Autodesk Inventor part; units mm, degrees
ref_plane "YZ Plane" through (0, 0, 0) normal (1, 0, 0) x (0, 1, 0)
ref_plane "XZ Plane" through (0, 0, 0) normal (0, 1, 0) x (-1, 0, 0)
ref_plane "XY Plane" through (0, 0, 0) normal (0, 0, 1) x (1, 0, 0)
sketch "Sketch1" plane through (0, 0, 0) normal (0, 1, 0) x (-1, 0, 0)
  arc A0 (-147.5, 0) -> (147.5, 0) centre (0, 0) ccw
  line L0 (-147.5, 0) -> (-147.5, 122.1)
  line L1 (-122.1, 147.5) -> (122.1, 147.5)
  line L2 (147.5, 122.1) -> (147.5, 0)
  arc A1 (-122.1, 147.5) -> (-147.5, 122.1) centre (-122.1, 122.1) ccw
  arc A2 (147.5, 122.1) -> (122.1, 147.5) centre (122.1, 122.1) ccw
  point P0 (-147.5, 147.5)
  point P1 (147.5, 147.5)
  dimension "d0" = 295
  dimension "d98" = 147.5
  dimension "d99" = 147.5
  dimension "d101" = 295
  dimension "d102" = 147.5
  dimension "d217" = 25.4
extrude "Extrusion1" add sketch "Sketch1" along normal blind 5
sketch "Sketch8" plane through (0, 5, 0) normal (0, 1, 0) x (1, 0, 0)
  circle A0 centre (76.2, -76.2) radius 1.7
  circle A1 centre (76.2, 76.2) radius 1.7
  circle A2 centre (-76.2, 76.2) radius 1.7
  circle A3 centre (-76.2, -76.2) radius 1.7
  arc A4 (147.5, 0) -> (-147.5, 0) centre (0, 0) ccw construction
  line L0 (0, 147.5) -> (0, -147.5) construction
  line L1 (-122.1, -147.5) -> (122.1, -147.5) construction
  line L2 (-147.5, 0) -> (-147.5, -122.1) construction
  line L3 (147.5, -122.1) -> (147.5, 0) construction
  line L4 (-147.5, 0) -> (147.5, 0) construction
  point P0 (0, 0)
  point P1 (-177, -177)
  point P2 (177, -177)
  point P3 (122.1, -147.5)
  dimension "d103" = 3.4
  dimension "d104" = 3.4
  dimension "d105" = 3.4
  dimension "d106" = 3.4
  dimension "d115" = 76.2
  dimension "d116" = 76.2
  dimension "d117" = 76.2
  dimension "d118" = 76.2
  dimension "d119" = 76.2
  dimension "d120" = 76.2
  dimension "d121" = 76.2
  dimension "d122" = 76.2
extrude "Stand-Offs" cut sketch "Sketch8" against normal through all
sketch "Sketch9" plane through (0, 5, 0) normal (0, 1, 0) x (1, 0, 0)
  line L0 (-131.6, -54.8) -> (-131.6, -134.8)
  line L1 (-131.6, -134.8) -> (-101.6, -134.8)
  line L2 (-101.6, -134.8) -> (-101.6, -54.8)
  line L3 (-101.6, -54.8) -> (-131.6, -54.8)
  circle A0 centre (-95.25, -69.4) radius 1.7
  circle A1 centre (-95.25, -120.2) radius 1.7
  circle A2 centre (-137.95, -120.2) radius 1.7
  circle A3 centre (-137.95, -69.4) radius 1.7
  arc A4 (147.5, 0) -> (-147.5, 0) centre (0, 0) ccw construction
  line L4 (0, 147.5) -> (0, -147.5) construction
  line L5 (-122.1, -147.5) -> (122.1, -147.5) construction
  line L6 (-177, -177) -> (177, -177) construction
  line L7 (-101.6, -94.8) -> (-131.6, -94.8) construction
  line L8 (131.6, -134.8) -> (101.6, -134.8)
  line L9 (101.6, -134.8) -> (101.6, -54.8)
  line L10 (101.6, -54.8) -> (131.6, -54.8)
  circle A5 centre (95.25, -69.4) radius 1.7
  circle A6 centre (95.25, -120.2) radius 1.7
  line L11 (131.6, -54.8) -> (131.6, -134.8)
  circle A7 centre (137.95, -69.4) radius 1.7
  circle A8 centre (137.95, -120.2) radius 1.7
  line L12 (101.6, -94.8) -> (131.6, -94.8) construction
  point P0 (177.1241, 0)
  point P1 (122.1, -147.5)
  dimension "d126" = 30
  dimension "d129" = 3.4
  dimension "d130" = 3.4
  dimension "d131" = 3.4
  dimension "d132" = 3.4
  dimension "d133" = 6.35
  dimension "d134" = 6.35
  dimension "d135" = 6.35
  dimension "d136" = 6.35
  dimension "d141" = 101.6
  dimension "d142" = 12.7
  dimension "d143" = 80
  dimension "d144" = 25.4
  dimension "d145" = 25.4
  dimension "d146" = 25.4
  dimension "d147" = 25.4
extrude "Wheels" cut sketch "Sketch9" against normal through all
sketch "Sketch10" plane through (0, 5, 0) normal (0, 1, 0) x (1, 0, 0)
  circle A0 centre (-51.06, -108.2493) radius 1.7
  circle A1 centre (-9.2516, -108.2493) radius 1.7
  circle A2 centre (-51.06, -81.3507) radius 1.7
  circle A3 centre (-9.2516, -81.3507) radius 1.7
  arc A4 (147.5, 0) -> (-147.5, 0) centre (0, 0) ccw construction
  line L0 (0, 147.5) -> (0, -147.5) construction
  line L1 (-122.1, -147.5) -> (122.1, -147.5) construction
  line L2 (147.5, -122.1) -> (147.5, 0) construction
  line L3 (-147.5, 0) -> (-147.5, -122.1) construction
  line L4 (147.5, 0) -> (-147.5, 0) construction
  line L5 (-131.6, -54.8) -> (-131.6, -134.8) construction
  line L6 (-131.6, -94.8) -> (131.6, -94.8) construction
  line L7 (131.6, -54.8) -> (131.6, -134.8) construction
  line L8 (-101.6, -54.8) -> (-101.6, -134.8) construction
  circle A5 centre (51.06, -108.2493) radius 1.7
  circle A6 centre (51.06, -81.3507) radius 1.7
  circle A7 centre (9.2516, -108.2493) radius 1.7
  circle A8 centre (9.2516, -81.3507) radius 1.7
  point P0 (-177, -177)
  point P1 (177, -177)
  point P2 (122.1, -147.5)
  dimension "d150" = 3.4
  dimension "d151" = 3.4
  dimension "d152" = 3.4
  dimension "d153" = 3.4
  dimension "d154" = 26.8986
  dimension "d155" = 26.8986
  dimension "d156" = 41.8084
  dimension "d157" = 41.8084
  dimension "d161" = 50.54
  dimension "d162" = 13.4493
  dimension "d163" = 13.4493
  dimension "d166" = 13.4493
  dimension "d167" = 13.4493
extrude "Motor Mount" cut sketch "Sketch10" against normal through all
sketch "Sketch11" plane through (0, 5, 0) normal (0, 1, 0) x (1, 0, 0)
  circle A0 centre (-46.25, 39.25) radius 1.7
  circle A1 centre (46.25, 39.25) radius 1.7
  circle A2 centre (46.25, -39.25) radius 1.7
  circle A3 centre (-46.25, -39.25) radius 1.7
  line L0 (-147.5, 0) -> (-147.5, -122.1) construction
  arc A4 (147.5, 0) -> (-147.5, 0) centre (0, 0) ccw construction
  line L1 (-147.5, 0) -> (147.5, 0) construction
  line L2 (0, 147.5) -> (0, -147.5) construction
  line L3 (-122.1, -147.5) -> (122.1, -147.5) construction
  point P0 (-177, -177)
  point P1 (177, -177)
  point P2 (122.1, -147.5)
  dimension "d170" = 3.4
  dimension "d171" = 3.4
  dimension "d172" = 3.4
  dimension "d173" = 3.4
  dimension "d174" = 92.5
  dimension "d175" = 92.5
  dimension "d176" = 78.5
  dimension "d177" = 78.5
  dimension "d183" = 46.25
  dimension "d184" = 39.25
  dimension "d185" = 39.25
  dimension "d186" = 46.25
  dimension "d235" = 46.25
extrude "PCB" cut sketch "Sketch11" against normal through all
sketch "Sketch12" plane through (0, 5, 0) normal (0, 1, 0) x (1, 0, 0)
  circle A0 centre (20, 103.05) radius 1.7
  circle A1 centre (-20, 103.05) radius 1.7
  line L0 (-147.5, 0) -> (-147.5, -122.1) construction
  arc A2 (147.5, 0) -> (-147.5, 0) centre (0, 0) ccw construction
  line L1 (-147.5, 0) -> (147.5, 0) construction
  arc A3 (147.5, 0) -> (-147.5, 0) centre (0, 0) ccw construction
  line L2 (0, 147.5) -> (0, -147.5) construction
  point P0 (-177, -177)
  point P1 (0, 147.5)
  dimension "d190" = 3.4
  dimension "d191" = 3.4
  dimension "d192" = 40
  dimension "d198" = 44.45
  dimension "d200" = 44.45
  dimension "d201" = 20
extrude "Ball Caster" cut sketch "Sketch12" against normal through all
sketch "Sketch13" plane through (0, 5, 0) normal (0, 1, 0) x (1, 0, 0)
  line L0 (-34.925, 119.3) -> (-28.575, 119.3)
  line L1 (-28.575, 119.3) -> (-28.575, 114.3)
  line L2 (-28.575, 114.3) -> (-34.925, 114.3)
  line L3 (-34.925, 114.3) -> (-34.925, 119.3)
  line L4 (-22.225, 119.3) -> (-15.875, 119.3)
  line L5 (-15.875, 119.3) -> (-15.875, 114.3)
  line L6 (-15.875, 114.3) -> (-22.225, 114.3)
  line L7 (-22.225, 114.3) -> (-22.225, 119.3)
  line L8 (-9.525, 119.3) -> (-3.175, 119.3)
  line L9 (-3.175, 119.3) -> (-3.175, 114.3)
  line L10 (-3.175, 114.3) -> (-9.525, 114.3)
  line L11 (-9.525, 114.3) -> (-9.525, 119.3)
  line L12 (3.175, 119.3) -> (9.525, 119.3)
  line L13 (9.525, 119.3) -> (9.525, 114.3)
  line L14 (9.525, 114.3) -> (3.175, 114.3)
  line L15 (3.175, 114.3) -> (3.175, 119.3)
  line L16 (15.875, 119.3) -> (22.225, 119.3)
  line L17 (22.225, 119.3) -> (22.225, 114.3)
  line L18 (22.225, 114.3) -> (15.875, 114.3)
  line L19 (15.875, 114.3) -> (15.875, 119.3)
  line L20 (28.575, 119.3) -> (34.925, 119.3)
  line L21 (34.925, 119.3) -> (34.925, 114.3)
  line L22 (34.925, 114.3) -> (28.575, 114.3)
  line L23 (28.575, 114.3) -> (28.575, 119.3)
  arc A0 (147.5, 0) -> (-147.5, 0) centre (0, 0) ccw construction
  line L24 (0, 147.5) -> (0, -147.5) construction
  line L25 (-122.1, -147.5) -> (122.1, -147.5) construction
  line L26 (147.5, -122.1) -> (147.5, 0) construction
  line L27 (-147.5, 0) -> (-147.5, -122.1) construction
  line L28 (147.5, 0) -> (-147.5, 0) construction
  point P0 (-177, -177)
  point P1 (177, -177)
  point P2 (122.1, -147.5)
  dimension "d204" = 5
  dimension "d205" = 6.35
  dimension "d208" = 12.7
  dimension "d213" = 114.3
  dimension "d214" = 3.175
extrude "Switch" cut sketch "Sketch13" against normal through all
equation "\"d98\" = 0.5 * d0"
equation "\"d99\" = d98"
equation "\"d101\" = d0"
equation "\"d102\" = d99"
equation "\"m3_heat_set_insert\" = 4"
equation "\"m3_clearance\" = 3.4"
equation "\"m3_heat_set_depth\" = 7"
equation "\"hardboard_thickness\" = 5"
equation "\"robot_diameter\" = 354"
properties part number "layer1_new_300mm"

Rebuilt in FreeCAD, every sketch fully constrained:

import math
import FreeCAD as App
import Part
import Sketcher

V = App.Vector
Q = App.Units.Quantity


def add_polygon(sketch, points):
    """Adds a closed chain of lines whose ends are joined by coincident constraints."""
    first, n = sketch.GeometryCount, len(points)
    for a, b in zip(points, points[1:] + points[:1]):
        sketch.addGeometry(Part.LineSegment(App.Vector(*a, 0), App.Vector(*b, 0)), False)
    for i in range(n):
        sketch.addConstraint(Sketcher.Constraint("Coincident", first + i, 2, first + (i + 1) % n, 1))

doc = App.newDocument("Part")
body = doc.addObject("PartDesign::Body", "Body")

# Sketch on XZ plane
sketch1 = body.newObject("Sketcher::SketchObject", "Sketch")
sketch1.AttachmentSupport = (doc.getObject("XZ_Plane"), [""])
sketch1.MapMode = "FlatFace"
sketch1.addGeometry([
    Part.LineSegment(V(148, 122, 0), V(148, 0, 0)),  # 0
    Part.ArcOfCircle(Part.Circle(V(0, 0, 0), V(0, 0, 1), 148), math.radians(180), math.radians(360)),  # 1
    Part.LineSegment(V(-148, 0, 0), V(-148, 122, 0)),  # 2
    Part.ArcOfCircle(Part.Circle(V(-122, 122, 0), V(0, 0, 1), 25), math.radians(90), math.radians(180)),  # 3
    Part.LineSegment(V(-122, 148, 0), V(122, 148, 0)),  # 4
    Part.ArcOfCircle(Part.Circle(V(122, 122, 0), V(0, 0, 1), 25), math.radians(0), math.radians(90)),  # 5
], False)
sketch1.addConstraint([
    Sketcher.Constraint("Tangent", 0, 2, 1, 2),
    Sketcher.Constraint("Tangent", 1, 1, 2, 1),
    Sketcher.Constraint("Tangent", 2, 2, 3, 2),
    Sketcher.Constraint("Tangent", 3, 1, 4, 1),
    Sketcher.Constraint("Tangent", 4, 2, 5, 2),
    Sketcher.Constraint("Tangent", 5, 1, 0, 1),
    Sketcher.Constraint("Vertical", 0),
    Sketcher.Constraint("Vertical", 2),
    Sketcher.Constraint("Horizontal", 4),
    Sketcher.Constraint("Coincident", 1, 3, -1, 1),
    Sketcher.Constraint("Equal", 3, 5),
    Sketcher.Constraint("Radius", 1, Q("147.5 mm")),
    Sketcher.Constraint("Radius", 3, Q("25.4 mm")),
    Sketcher.Constraint("DistanceY", -1, 1, 3, 1, Q("147.5 mm")),
])
pad1 = body.newObject("PartDesign::Pad", "Pad")
pad1.Profile = sketch1
pad1.Length = 5
pad1.Reversed = True

# Sketch on XZ plane
sketch2 = body.newObject("Sketcher::SketchObject", "Sketch001")
sketch2.AttachmentSupport = (doc.getObject("XZ_Plane"), [""])
sketch2.MapMode = "FlatFace"
sketch2.AttachmentOffset = App.Placement(V(0, 0, -5), App.Rotation())
sketch2.addGeometry([
    Part.Circle(V(76.2, 76.2, 0), V(0, 0, 1), 1.7),
    Part.Circle(V(76.2, -76.2, 0), V(0, 0, 1), 1.7),
    Part.Circle(V(-76.2, -76.2, 0), V(0, 0, 1), 1.7),
    Part.Circle(V(-76.2, 76.2, 0), V(0, 0, 1), 1.7),
], False)
sketch2.addConstraint([
    Sketcher.Constraint("Equal", 0, 1),
    Sketcher.Constraint("Equal", 1, 2),
    Sketcher.Constraint("Equal", 2, 3),
    Sketcher.Constraint("Symmetric", 0, 3, 2, 3, -1, 1),
    Sketcher.Constraint("Symmetric", 1, 3, 3, 3, -1, 1),
    Sketcher.Constraint("Symmetric", 1, 3, 2, 3, -2),
    Sketcher.Constraint("Diameter", 0, Q("3.4 mm")),
    Sketcher.Constraint("DistanceX", -1, 1, 0, 3, Q("76.2 mm")),
    Sketcher.Constraint("DistanceY", -1, 1, 0, 3, Q("76.2 mm")),
])
pocket1 = body.newObject("PartDesign::Pocket", "Pocket")
pocket1.Profile = sketch2
pocket1.Type = "ThroughAll"
pocket1.Reversed = True

# Sketch on XZ plane
sketch3 = body.newObject("Sketcher::SketchObject", "Sketch002")
sketch3.AttachmentSupport = (doc.getObject("XZ_Plane"), [""])
sketch3.MapMode = "FlatFace"
sketch3.AttachmentOffset = App.Placement(V(0, 0, -5), App.Rotation())
add_polygon(sketch3, [(-101.6, 54.8), (-131.6, 54.8), (-131.6, 134.8), (-101.6, 134.8)])  # lines 0-3
sketch3.addGeometry(Part.Circle(V(-95.2, 69.4, 0), V(0, 0, 1), 1.7), False)  # 4
sketch3.addGeometry(Part.Circle(V(-95.2, 120.2, 0), V(0, 0, 1), 1.7), False)  # 5
sketch3.addGeometry(Part.Circle(V(-137.9, 120.2, 0), V(0, 0, 1), 1.7), False)  # 6
sketch3.addGeometry(Part.Circle(V(-137.9, 69.4, 0), V(0, 0, 1), 1.7), False)  # 7
add_polygon(sketch3, [(101.6, 134.8), (131.6, 134.8), (131.6, 54.8), (101.6, 54.8)])  # lines 8-11
sketch3.addGeometry(Part.Circle(V(95.2, 69.4, 0), V(0, 0, 1), 1.7), False)  # 12
sketch3.addGeometry(Part.Circle(V(95.2, 120.2, 0), V(0, 0, 1), 1.7), False)  # 13
sketch3.addGeometry(Part.Circle(V(137.9, 69.4, 0), V(0, 0, 1), 1.7), False)  # 14
sketch3.addGeometry(Part.Circle(V(137.9, 120.2, 0), V(0, 0, 1), 1.7), False)  # 15
sketch3.addConstraint([
    Sketcher.Constraint("Horizontal", 0),
    Sketcher.Constraint("Vertical", 1),
    Sketcher.Constraint("Horizontal", 2),
    Sketcher.Constraint("Vertical", 3),
    Sketcher.Constraint("Horizontal", 8),
    Sketcher.Constraint("Vertical", 9),
    Sketcher.Constraint("Horizontal", 10),
    Sketcher.Constraint("Vertical", 11),
    Sketcher.Constraint("Equal", 4, 5),
    Sketcher.Constraint("Equal", 5, 6),
    Sketcher.Constraint("Equal", 6, 7),
    Sketcher.Constraint("Equal", 7, 12),
    Sketcher.Constraint("Equal", 12, 13),
    Sketcher.Constraint("Equal", 13, 14),
    Sketcher.Constraint("Equal", 14, 15),
    Sketcher.Constraint("Symmetric", 4, 3, 12, 3, -2),
    Sketcher.Constraint("Symmetric", 5, 3, 13, 3, -2),
    Sketcher.Constraint("Symmetric", 7, 3, 14, 3, -2),
    Sketcher.Constraint("Symmetric", 6, 3, 15, 3, -2),
    Sketcher.Constraint("Symmetric", 1, 2, 8, 2, -2),
    Sketcher.Constraint("Symmetric", 3, 2, 10, 2, -2),
    Sketcher.Constraint("Horizontal", 5, 3, 6, 3),
    Sketcher.Constraint("Horizontal", 4, 3, 7, 3),
    Sketcher.Constraint("Vertical", 4, 3, 5, 3),
    Sketcher.Constraint("Vertical", 6, 3, 7, 3),
    Sketcher.Constraint("Diameter", 4, Q("3.4 mm")),
    Sketcher.Constraint("DistanceX", 0, 2, 0, 1, Q("30 mm")),
    Sketcher.Constraint("DistanceY", 1, 1, 1, 2, Q("80 mm")),
    Sketcher.Constraint("DistanceX", 2, 2, -1, 1, Q("101.6 mm")),
    Sketcher.Constraint("DistanceX", 7, 3, 0, 2, Q("6.35 mm")),
    Sketcher.Constraint("DistanceX", 2, 2, 5, 3, Q("6.35 mm")),
    Sketcher.Constraint("DistanceY", -1, 1, 4, 3, Q("69.4 mm")),
    Sketcher.Constraint("DistanceY", -1, 1, 5, 3, Q("120.2 mm")),
    Sketcher.Constraint("DistanceY", -1, 1, 0, 2, Q("54.8 mm")),
])
pocket2 = body.newObject("PartDesign::Pocket", "Pocket001")
pocket2.Profile = sketch3
pocket2.Type = "ThroughAll"
pocket2.Reversed = True

# Sketch on XZ plane
sketch4 = body.newObject("Sketcher::SketchObject", "Sketch003")
sketch4.AttachmentSupport = (doc.getObject("XZ_Plane"), [""])
sketch4.MapMode = "FlatFace"
sketch4.AttachmentOffset = App.Placement(V(0, 0, -5), App.Rotation())
sketch4.addGeometry([
    Part.Circle(V(-51.1, 108.2, 0), V(0, 0, 1), 1.7),  # 0
    Part.Circle(V(-9.3, 108.2, 0), V(0, 0, 1), 1.7),  # 1
    Part.Circle(V(-51.1, 81.4, 0), V(0, 0, 1), 1.7),  # 2
    Part.Circle(V(-9.3, 81.4, 0), V(0, 0, 1), 1.7),  # 3
    Part.Circle(V(51.1, 108.2, 0), V(0, 0, 1), 1.7),  # 4
    Part.Circle(V(51.1, 81.4, 0), V(0, 0, 1), 1.7),  # 5
    Part.Circle(V(9.3, 108.2, 0), V(0, 0, 1), 1.7),  # 6
    Part.Circle(V(9.3, 81.4, 0), V(0, 0, 1), 1.7),  # 7
], False)
sketch4.addConstraint([
    Sketcher.Constraint("Equal", 0, 1),
    Sketcher.Constraint("Equal", 1, 2),
    Sketcher.Constraint("Equal", 2, 3),
    Sketcher.Constraint("Equal", 3, 4),
    Sketcher.Constraint("Equal", 4, 5),
    Sketcher.Constraint("Equal", 5, 6),
    Sketcher.Constraint("Equal", 6, 7),
    Sketcher.Constraint("Symmetric", 0, 3, 4, 3, -2),
    Sketcher.Constraint("Symmetric", 2, 3, 5, 3, -2),
    Sketcher.Constraint("Symmetric", 1, 3, 6, 3, -2),
    Sketcher.Constraint("Symmetric", 3, 3, 7, 3, -2),
    Sketcher.Constraint("Horizontal", 0, 3, 1, 3),
    Sketcher.Constraint("Horizontal", 2, 3, 3, 3),
    Sketcher.Constraint("Vertical", 0, 3, 2, 3),
    Sketcher.Constraint("Vertical", 1, 3, 3, 3),
    Sketcher.Constraint("Diameter", 0, Q("3.4 mm")),
    Sketcher.Constraint("DistanceX", 0, 3, 1, 3, Q("41.8084 mm")),
    Sketcher.Constraint("DistanceY", 2, 3, 0, 3, Q("26.8986 mm")),
    Sketcher.Constraint("DistanceX", 0, 3, -1, 1, Q("51.06 mm")),
    Sketcher.Constraint("DistanceY", -1, 1, 0, 3, Q("108.2493 mm")),
])
pocket3 = body.newObject("PartDesign::Pocket", "Pocket002")
pocket3.Profile = sketch4
pocket3.Type = "ThroughAll"
pocket3.Reversed = True

# Sketch on XZ plane
sketch5 = body.newObject("Sketcher::SketchObject", "Sketch004")
sketch5.AttachmentSupport = (doc.getObject("XZ_Plane"), [""])
sketch5.MapMode = "FlatFace"
sketch5.AttachmentOffset = App.Placement(V(0, 0, -5), App.Rotation())
sketch5.addGeometry([
    Part.Circle(V(-46.2, -39.2, 0), V(0, 0, 1), 1.7),
    Part.Circle(V(46.2, -39.2, 0), V(0, 0, 1), 1.7),
    Part.Circle(V(46.2, 39.2, 0), V(0, 0, 1), 1.7),
    Part.Circle(V(-46.2, 39.2, 0), V(0, 0, 1), 1.7),
], False)
sketch5.addConstraint([
    Sketcher.Constraint("Equal", 0, 1),
    Sketcher.Constraint("Equal", 1, 2),
    Sketcher.Constraint("Equal", 2, 3),
    Sketcher.Constraint("Symmetric", 0, 3, 2, 3, -1, 1),
    Sketcher.Constraint("Symmetric", 1, 3, 3, 3, -1, 1),
    Sketcher.Constraint("Symmetric", 0, 3, 1, 3, -2),
    Sketcher.Constraint("Diameter", 0, Q("3.4 mm")),
    Sketcher.Constraint("DistanceX", 0, 3, 1, 3, Q("92.5 mm")),
    Sketcher.Constraint("DistanceY", 1, 3, 2, 3, Q("78.5 mm")),
])
pocket4 = body.newObject("PartDesign::Pocket", "Pocket003")
pocket4.Profile = sketch5
pocket4.Type = "ThroughAll"
pocket4.Reversed = True

# Sketch on XZ plane
sketch6 = body.newObject("Sketcher::SketchObject", "Sketch005")
sketch6.AttachmentSupport = (doc.getObject("XZ_Plane"), [""])
sketch6.MapMode = "FlatFace"
sketch6.AttachmentOffset = App.Placement(V(0, 0, -5), App.Rotation())
sketch6.addGeometry([
    Part.Circle(V(20, -103, 0), V(0, 0, 1), 1.7),
    Part.Circle(V(-20, -103, 0), V(0, 0, 1), 1.7),
], False)
sketch6.addConstraint([
    Sketcher.Constraint("Equal", 0, 1),
    Sketcher.Constraint("Symmetric", 0, 3, 1, 3, -2),
    Sketcher.Constraint("Diameter", 0, Q("3.4 mm")),
    Sketcher.Constraint("DistanceX", -1, 1, 0, 3, Q("20 mm")),
    Sketcher.Constraint("DistanceY", 0, 3, -1, 1, Q("103.05 mm")),
])
pocket5 = body.newObject("PartDesign::Pocket", "Pocket004")
pocket5.Profile = sketch6
pocket5.Type = "ThroughAll"
pocket5.Reversed = True

# Sketch on XZ plane
sketch7 = body.newObject("Sketcher::SketchObject", "Sketch006")
sketch7.AttachmentSupport = (doc.getObject("XZ_Plane"), [""])
sketch7.MapMode = "FlatFace"
sketch7.AttachmentOffset = App.Placement(V(0, 0, -5), App.Rotation())
add_polygon(sketch7, [(-29, -119), (-35, -119), (-35, -114), (-29, -114)])  # lines 0-3
add_polygon(sketch7, [(-16, -119), (-22, -119), (-22, -114), (-16, -114)])  # lines 4-7
add_polygon(sketch7, [(-3, -119), (-10, -119), (-10, -114), (-3, -114)])  # lines 8-11
add_polygon(sketch7, [(10, -119), (3, -119), (3, -114), (10, -114)])  # lines 12-15
add_polygon(sketch7, [(22, -119), (16, -119), (16, -114), (22, -114)])  # lines 16-19
add_polygon(sketch7, [(35, -119), (29, -119), (29, -114), (35, -114)])  # lines 20-23
sketch7.addConstraint([
    Sketcher.Constraint("Horizontal", 0),
    Sketcher.Constraint("Vertical", 1),
    Sketcher.Constraint("Horizontal", 2),
    Sketcher.Constraint("Vertical", 3),
    Sketcher.Constraint("Horizontal", 4),
    Sketcher.Constraint("Vertical", 5),
    Sketcher.Constraint("Horizontal", 6),
    Sketcher.Constraint("Vertical", 7),
    Sketcher.Constraint("Horizontal", 8),
    Sketcher.Constraint("Vertical", 9),
    Sketcher.Constraint("Horizontal", 10),
    Sketcher.Constraint("Vertical", 11),
    Sketcher.Constraint("Horizontal", 12),
    Sketcher.Constraint("Vertical", 13),
    Sketcher.Constraint("Horizontal", 14),
    Sketcher.Constraint("Vertical", 15),
    Sketcher.Constraint("Horizontal", 16),
    Sketcher.Constraint("Vertical", 17),
    Sketcher.Constraint("Horizontal", 18),
    Sketcher.Constraint("Vertical", 19),
    Sketcher.Constraint("Horizontal", 20),
    Sketcher.Constraint("Vertical", 21),
    Sketcher.Constraint("Horizontal", 22),
    Sketcher.Constraint("Vertical", 23),
    Sketcher.Constraint("Symmetric", 11, 2, 12, 2, -2),
    Sketcher.Constraint("Symmetric", 9, 2, 14, 2, -2),
    Sketcher.Constraint("Symmetric", 7, 2, 16, 2, -2),
    Sketcher.Constraint("Symmetric", 5, 2, 18, 2, -2),
    Sketcher.Constraint("Symmetric", 3, 2, 20, 2, -2),
    Sketcher.Constraint("Symmetric", 1, 2, 22, 2, -2),
    Sketcher.Constraint("Horizontal", 3, 2, 4, 2),
    Sketcher.Constraint("Horizontal", 2, 2, 5, 2),
    Sketcher.Constraint("Horizontal", 7, 2, 8, 2),
    Sketcher.Constraint("Horizontal", 6, 2, 9, 2),
    Sketcher.Constraint("Equal", 2, 4),
    Sketcher.Constraint("Equal", 6, 8),
    Sketcher.Constraint("DistanceY", 1, 1, 1, 2, Q("5 mm")),
    Sketcher.Constraint("DistanceX", 0, 2, 0, 1, Q("6.35 mm")),
    Sketcher.Constraint("DistanceY", 1, 2, -1, 1, Q("114.3 mm")),
    Sketcher.Constraint("DistanceX", 0, 2, 4, 2, Q("12.7 mm")),
    Sketcher.Constraint("DistanceX", 4, 2, 8, 2, Q("12.7 mm")),
    Sketcher.Constraint("DistanceX", 8, 2, 12, 2, Q("12.7 mm")),
])
pocket6 = body.newObject("PartDesign::Pocket", "Pocket005")
pocket6.Profile = sketch7
pocket6.Type = "ThroughAll"
pocket6.Reversed = True

doc.recompute()
